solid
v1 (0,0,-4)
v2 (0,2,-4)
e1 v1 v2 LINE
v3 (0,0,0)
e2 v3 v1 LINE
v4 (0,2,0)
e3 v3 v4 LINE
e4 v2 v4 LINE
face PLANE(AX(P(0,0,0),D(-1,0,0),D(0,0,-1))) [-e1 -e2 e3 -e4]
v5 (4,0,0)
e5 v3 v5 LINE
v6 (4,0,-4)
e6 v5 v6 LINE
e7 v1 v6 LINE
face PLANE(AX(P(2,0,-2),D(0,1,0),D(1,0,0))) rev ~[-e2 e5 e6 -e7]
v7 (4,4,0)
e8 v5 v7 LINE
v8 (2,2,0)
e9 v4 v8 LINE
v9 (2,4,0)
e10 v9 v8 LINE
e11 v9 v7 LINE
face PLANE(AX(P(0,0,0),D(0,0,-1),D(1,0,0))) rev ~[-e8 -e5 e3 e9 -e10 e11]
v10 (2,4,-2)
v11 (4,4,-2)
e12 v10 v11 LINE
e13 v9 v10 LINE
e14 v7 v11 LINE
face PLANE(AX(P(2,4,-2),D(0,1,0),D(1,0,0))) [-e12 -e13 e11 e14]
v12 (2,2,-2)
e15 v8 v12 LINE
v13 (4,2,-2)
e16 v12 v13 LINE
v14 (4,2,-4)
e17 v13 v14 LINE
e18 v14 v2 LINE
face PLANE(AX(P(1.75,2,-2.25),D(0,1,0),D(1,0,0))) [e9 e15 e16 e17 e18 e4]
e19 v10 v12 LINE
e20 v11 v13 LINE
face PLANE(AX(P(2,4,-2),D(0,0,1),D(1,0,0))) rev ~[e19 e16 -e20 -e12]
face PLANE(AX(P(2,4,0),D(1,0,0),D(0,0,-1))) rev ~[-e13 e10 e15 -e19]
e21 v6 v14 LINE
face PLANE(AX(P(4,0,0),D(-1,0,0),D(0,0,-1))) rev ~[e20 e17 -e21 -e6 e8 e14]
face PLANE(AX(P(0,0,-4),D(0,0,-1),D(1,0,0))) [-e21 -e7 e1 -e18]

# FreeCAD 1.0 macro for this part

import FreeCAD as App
import Part
import Sketcher

V = App.Vector
Q = App.Units.Quantity


def add_polygon(sketch, points):
    """Adds a closed chain of lines whose ends are joined by coincident constraints."""
    first, n = sketch.GeometryCount, len(points)
    for a, b in zip(points, points[1:] + points[:1]):
        sketch.addGeometry(Part.LineSegment(App.Vector(*a, 0), App.Vector(*b, 0)), False)
    for i in range(n):
        sketch.addConstraint(Sketcher.Constraint("Coincident", first + i, 2, first + (i + 1) % n, 1))

doc = App.newDocument("Part")
params = doc.addObject("Spreadsheet::Sheet", "Params")
for row, (alias, value) in enumerate([
    ("sketch1_width", "4 mm"),
    ("pad1_length", "4 mm"),
    ("sketch2_width", "2 mm"),
    ("pocket1_length", "2 mm"),
], start=1):
    params.set(f"A{row}", alias)
    params.set(f"B{row}", "=" + value)
    params.setAlias(f"B{row}", alias)

body = doc.addObject("PartDesign::Body", "Body")

# Sketch on XZ plane
sketch1 = body.newObject("Sketcher::SketchObject", "Sketch")
sketch1.AttachmentSupport = (doc.getObject("XZ_Plane"), [""])
sketch1.MapMode = "FlatFace"
add_polygon(sketch1, [(0, -4), (0, 0), (4, 0), (4, -4)])  # lines 0-3
sketch1.addConstraint(Sketcher.Constraint("Vertical", 0))
sketch1.addConstraint(Sketcher.Constraint("Horizontal", 1))
sketch1.addConstraint(Sketcher.Constraint("Vertical", 2))
sketch1.addConstraint(Sketcher.Constraint("Horizontal", 3))
sketch1.addConstraint(Sketcher.Constraint("Coincident", 0, 2, -1, 1))
sketch1.addConstraint(Sketcher.Constraint("Equal", 3, 0))
sketch1.addConstraint(Sketcher.Constraint("DistanceX", 1, 1, 1, 2, Q("4 mm")))
sketch1.setExpression("Constraints[10]", "Params.sketch1_width")
pad1 = body.newObject("PartDesign::Pad", "Pad")
pad1.Profile = sketch1
pad1.setExpression("Length", "Params.pad1_length")
pad1.Reversed = True

# Sketch on XZ plane
sketch2 = body.newObject("Sketcher::SketchObject", "Sketch001")
sketch2.AttachmentSupport = (doc.getObject("XZ_Plane"), [""])
sketch2.MapMode = "FlatFace"
sketch2.AttachmentOffset = App.Placement(V(0, 0, -4), App.Rotation())
add_polygon(sketch2, [(2, 0), (2, -2), (4, -2), (4, -4), (0, -4), (0, 0)])  # lines 0-5
sketch2.addConstraint(Sketcher.Constraint("Vertical", 0))
sketch2.addConstraint(Sketcher.Constraint("Horizontal", 1))
sketch2.addConstraint(Sketcher.Constraint("Vertical", 2))
sketch2.addConstraint(Sketcher.Constraint("Horizontal", 3))
sketch2.addConstraint(Sketcher.Constraint("Vertical", 4))
sketch2.addConstraint(Sketcher.Constraint("Horizontal", 5))
sketch2.addConstraint(Sketcher.Constraint("Coincident", 4, 2, -1, 1))
sketch2.addConstraint(Sketcher.Constraint("Equal", 1, 5))
sketch2.addConstraint(Sketcher.Constraint("Equal", 5, 0))
sketch2.addConstraint(Sketcher.Constraint("Equal", 0, 2))
sketch2.addConstraint(Sketcher.Constraint("DistanceX", 1, 1, 1, 2, Q("2 mm")))
sketch2.setExpression("Constraints[16]", "Params.sketch2_width")
pocket1 = body.newObject("PartDesign::Pocket", "Pocket")
pocket1.Profile = sketch2
pocket1.setExpression("Length", "Params.pocket1_length")
pocket1.Reversed = True

doc.recompute()
